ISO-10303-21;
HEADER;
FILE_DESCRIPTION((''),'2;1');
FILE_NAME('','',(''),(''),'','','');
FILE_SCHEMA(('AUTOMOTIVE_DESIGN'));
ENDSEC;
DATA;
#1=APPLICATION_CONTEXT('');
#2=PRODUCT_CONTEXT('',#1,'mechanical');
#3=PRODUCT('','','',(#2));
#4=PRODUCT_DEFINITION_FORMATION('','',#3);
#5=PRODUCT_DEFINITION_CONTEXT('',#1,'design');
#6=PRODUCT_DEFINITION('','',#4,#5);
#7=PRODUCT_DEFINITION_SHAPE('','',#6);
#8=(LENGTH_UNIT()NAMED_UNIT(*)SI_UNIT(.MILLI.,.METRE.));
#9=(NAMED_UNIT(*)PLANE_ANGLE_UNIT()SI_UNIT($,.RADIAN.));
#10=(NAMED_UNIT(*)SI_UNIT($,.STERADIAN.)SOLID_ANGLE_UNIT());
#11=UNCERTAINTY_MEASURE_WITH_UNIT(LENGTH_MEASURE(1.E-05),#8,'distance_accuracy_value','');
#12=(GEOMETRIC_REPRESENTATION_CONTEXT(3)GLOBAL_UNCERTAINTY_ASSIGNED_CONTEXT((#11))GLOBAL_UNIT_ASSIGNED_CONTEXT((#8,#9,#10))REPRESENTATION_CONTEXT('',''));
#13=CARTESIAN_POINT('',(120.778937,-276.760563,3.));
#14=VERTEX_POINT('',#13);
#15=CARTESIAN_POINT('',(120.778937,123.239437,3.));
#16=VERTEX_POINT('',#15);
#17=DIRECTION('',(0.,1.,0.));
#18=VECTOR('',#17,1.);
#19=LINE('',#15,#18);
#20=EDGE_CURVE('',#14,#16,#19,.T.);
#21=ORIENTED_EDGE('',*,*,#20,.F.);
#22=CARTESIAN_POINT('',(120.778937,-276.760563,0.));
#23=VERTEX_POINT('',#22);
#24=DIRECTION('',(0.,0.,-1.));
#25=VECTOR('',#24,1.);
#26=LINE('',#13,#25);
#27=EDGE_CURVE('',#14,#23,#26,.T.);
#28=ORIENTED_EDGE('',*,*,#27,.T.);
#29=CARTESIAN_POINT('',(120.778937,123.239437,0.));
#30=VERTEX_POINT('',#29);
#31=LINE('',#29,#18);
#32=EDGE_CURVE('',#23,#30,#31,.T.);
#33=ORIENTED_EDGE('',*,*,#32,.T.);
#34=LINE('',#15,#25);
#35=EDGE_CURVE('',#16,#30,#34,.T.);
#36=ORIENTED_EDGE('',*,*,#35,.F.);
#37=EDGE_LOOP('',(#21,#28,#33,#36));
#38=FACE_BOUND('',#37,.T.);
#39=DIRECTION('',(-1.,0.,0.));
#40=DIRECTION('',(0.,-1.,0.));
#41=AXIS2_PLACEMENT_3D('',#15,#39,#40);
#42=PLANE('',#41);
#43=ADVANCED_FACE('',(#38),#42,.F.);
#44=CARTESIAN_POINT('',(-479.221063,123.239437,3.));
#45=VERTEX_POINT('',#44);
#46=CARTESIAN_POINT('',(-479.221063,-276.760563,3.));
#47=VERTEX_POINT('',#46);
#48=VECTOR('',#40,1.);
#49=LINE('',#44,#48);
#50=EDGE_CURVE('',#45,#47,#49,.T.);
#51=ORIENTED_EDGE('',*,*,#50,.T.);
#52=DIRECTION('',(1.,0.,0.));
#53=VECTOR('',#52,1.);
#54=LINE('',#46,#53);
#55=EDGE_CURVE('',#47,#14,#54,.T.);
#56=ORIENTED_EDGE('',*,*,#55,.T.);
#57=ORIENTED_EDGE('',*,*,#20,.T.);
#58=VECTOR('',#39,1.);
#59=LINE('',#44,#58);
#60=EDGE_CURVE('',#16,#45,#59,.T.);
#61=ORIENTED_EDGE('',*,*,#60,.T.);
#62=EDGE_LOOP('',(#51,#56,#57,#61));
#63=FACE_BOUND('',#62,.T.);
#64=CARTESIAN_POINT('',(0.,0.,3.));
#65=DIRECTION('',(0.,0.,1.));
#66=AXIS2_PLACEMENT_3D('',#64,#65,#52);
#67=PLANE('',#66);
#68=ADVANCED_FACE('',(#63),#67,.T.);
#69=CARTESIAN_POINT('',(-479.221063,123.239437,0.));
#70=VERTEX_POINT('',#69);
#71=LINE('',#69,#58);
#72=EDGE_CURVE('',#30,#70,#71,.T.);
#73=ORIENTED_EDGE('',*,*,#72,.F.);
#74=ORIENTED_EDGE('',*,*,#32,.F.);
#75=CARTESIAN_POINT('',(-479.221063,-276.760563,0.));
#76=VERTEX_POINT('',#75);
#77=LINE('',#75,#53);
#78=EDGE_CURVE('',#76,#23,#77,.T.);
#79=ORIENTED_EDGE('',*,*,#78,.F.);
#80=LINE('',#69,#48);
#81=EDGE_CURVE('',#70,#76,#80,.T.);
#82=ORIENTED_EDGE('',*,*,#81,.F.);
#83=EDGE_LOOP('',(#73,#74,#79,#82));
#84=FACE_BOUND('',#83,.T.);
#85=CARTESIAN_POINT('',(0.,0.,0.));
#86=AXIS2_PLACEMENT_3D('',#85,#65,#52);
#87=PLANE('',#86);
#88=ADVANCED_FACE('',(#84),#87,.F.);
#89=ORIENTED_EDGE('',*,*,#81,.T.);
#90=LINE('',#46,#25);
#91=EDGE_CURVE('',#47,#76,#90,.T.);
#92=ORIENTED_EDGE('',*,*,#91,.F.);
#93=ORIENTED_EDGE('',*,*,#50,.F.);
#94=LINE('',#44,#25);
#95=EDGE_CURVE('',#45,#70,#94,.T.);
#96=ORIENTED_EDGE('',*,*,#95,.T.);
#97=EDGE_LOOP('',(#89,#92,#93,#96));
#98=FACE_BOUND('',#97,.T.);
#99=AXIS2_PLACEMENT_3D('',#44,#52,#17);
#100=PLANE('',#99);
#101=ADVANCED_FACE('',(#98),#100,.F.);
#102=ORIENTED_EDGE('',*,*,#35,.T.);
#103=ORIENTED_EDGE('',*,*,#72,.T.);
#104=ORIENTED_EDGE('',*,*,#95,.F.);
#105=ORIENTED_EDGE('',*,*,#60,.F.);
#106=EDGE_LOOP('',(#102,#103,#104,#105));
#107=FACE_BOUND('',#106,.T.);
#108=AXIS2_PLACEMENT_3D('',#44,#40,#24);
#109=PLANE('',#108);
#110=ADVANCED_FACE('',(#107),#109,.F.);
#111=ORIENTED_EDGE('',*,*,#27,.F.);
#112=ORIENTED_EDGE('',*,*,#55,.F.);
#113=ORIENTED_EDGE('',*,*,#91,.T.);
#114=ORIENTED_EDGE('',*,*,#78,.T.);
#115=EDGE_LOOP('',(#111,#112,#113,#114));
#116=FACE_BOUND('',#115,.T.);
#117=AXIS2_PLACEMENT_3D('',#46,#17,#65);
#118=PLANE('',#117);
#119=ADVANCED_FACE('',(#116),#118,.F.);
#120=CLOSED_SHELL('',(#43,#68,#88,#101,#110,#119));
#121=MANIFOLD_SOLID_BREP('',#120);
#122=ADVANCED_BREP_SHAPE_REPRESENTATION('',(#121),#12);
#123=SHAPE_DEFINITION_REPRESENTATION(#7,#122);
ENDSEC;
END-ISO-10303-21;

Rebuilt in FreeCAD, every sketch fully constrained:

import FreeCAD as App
import Part
import Sketcher
from FreeCAD import Vector

doc = App.newDocument("Part")
body = doc.addObject("PartDesign::Body", "Body")

# Sketch on XY plane
sketch1 = doc.addObject("Sketcher::SketchObject", "Sketch")
body.addObject(sketch1)
sketch1.AttachmentSupport = (doc.XY_Plane, [""])
sketch1.MapMode = "FlatFace"
sketch1.addGeometry([
    Part.LineSegment(Vector(-479, 123, 0), Vector(-479, -277, 0)),
    Part.LineSegment(Vector(-479, -277, 0), Vector(121, -277, 0)),
    Part.LineSegment(Vector(121, -277, 0), Vector(121, 123, 0)),
    Part.LineSegment(Vector(121, 123, 0), Vector(-479, 123, 0)),
], False)
sketch1.addConstraint([
    Sketcher.Constraint("Coincident", 0, 2, 1, 1),
    Sketcher.Constraint("Coincident", 1, 2, 2, 1),
    Sketcher.Constraint("Coincident", 2, 2, 3, 1),
    Sketcher.Constraint("Coincident", 3, 2, 0, 1),
    Sketcher.Constraint("Vertical", 0),
    Sketcher.Constraint("Horizontal", 1),
    Sketcher.Constraint("Vertical", 2),
    Sketcher.Constraint("Horizontal", 3),
    Sketcher.Constraint("DistanceX", 1, 1, 1, 2, 600.0),
    Sketcher.Constraint("DistanceY", 0, 2, 0, 1, 400.0),
    Sketcher.Constraint("DistanceX", 0, 2, -1, 1, 479.221063),
    Sketcher.Constraint("DistanceY", 0, 2, -1, 1, 276.760563),
])
pad1 = doc.addObject("PartDesign::Pad", "Pad")
body.addObject(pad1)
pad1.Profile = sketch1
pad1.Length = 3

doc.recompute()
